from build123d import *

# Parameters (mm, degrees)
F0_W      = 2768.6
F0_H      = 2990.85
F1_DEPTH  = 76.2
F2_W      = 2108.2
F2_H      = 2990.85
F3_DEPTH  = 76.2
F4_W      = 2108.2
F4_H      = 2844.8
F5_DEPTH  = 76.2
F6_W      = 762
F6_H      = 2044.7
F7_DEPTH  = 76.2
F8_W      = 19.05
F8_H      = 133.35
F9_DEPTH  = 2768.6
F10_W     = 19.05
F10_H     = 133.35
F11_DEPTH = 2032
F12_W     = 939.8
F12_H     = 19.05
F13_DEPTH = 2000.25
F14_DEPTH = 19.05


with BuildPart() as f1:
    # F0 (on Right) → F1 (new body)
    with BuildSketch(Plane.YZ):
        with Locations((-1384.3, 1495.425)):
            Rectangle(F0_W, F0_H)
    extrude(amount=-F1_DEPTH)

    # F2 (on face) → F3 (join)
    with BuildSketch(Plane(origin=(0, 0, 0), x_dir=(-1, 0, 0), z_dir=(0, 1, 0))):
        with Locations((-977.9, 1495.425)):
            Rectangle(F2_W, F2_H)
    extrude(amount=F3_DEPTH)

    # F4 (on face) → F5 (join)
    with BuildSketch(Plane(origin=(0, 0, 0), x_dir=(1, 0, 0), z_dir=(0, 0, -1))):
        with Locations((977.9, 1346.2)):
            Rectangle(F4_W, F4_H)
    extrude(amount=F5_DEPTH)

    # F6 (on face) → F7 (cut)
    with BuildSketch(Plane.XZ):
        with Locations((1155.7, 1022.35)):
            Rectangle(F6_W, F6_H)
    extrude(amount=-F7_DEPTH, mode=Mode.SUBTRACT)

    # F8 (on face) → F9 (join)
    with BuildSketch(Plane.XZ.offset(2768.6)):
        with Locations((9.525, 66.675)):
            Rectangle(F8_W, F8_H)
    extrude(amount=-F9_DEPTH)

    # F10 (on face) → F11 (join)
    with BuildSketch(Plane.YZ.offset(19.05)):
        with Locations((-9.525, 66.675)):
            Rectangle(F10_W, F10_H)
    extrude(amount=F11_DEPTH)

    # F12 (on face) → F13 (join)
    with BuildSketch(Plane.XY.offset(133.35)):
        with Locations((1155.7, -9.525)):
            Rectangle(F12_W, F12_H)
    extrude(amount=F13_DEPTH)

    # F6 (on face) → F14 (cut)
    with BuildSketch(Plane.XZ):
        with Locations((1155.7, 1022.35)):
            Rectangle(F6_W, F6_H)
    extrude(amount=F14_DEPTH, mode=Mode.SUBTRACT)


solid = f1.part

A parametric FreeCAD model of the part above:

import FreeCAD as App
import Part
import Sketcher

V = App.Vector
Q = App.Units.Quantity

doc = App.newDocument("Part")
params = doc.addObject("Spreadsheet::Sheet", "Params")
for row, (alias, value) in enumerate([
    ("sketch1_width", "109 in"),
    ("sketch1_height", "117.75 in"),
    ("pad1_length", "3 in"),
    ("sketch2_width", "83 in"),
    ("sketch2_height", "117.75 in"),
    ("pad2_length", "3 in"),
    ("sketch3_width", "83 in"),
    ("sketch3_height", "112 in"),
    ("pad3_length", "3 in"),
    ("sketch4_width", "30 in"),
    ("sketch4_height", "80.5 in"),
    ("pocket1_length", "3 in"),
    ("sketch5_width", "0.75 in"),
    ("sketch5_height", "5.25 in"),
    ("pad4_length", "109 in"),
    ("sketch6_width", "0.75 in"),
    ("sketch6_height", "5.25 in"),
    ("pad5_length", "80 in"),
    ("sketch7_width", "37 in"),
    ("sketch7_height", "0.75 in"),
    ("pad6_length", "78.75 in"),
    ("sketch8_width", "30 in"),
    ("sketch8_height", "80.5 in"),
    ("pocket2_length", "0.75 in"),
], start=1):
    params.set(f"A{row}", alias)
    params.set(f"B{row}", "=" + value)
    params.setAlias(f"B{row}", alias)

body = doc.addObject("PartDesign::Body", "Body")

sketch1 = body.newObject("Sketcher::SketchObject", "Sketch")
sketch1.AttachmentSupport = (doc.getObject("YZ_Plane"), [""])
sketch1.MapMode = "FlatFace"
sketch1.addGeometry(Part.LineSegment(V(-2768.6, 2990.85, 0), V(-2768.6, 0, 0)), False)
sketch1.addGeometry(Part.LineSegment(V(-2768.6, 0, 0), V(0, 0, 0)), False)
sketch1.addGeometry(Part.LineSegment(V(0, 0, 0), V(0, 2990.85, 0)), False)
sketch1.addGeometry(Part.LineSegment(V(0, 2990.85, 0), V(-2768.6, 2990.85, 0)), False)
sketch1.addConstraint(Sketcher.Constraint("Coincident", 0, 2, 1, 1))
sketch1.addConstraint(Sketcher.Constraint("Coincident", 1, 2, 2, 1))
sketch1.addConstraint(Sketcher.Constraint("Coincident", 2, 2, 3, 1))
sketch1.addConstraint(Sketcher.Constraint("Coincident", 3, 2, 0, 1))
sketch1.addConstraint(Sketcher.Constraint("Vertical", 0))
sketch1.addConstraint(Sketcher.Constraint("Horizontal", 1))
sketch1.addConstraint(Sketcher.Constraint("Vertical", 2))
sketch1.addConstraint(Sketcher.Constraint("Horizontal", 3))
sketch1.addConstraint(Sketcher.Constraint("Coincident", 1, 2, -1, 1))
sketch1.addConstraint(Sketcher.Constraint("DistanceX", 1, 1, 1, 2, Q("109 in")))
sketch1.addConstraint(Sketcher.Constraint("DistanceY", 0, 2, 0, 1, Q("117.75 in")))
sketch1.setExpression("Constraints[9]", "Params.sketch1_width")
sketch1.setExpression("Constraints[10]", "Params.sketch1_height")
pad1 = body.newObject("PartDesign::Pad", "Pad")
pad1.Profile = sketch1
pad1.setExpression("Length", "Params.pad1_length")
pad1.Reversed = True

sketch2 = body.newObject("Sketcher::SketchObject", "Sketch001")
sketch2.AttachmentSupport = (doc.getObject("XZ_Plane"), [""])
sketch2.MapMode = "FlatFace"
sketch2.addGeometry(Part.LineSegment(V(2032, 2990.85, 0), V(2032, 0, 0)), False)
sketch2.addGeometry(Part.LineSegment(V(2032, 0, 0), V(-76.2, 0, 0)), False)
sketch2.addGeometry(Part.LineSegment(V(-76.2, 0, 0), V(-76.2, 2990.85, 0)), False)
sketch2.addGeometry(Part.LineSegment(V(-76.2, 2990.85, 0), V(2032, 2990.85, 0)), False)
sketch2.addConstraint(Sketcher.Constraint("Coincident", 0, 2, 1, 1))
sketch2.addConstraint(Sketcher.Constraint("Coincident", 1, 2, 2, 1))
sketch2.addConstraint(Sketcher.Constraint("Coincident", 2, 2, 3, 1))
sketch2.addConstraint(Sketcher.Constraint("Coincident", 3, 2, 0, 1))
sketch2.addConstraint(Sketcher.Constraint("Vertical", 0))
sketch2.addConstraint(Sketcher.Constraint("Horizontal", 1))
sketch2.addConstraint(Sketcher.Constraint("Vertical", 2))
sketch2.addConstraint(Sketcher.Constraint("Horizontal", 3))
sketch2.addConstraint(Sketcher.Constraint("PointOnObject", 0, 2, -1))
sketch2.addConstraint(Sketcher.Constraint("DistanceX", 1, 2, 1, 1, Q("83 in")))
sketch2.addConstraint(Sketcher.Constraint("DistanceX", -1, 1, 0, 2, Q("80 in")))
sketch2.addConstraint(Sketcher.Constraint("DistanceY", 0, 2, 0, 1, Q("117.75 in")))
sketch2.setExpression("Constraints[9]", "Params.sketch2_width")
sketch2.setExpression("Constraints[11]", "Params.sketch2_height")
pad2 = body.newObject("PartDesign::Pad", "Pad001")
pad2.Profile = sketch2
pad2.setExpression("Length", "Params.pad2_length")
pad2.Reversed = True

sketch3 = body.newObject("Sketcher::SketchObject", "Sketch002")
sketch3.AttachmentSupport = (doc.getObject("XY_Plane"), [""])
sketch3.MapMode = "FlatFace"
sketch3.addGeometry(Part.LineSegment(V(-76.2, -2768.6, 0), V(-76.2, 76.2, 0)), False)
sketch3.addGeometry(Part.LineSegment(V(-76.2, 76.2, 0), V(2032, 76.2, 0)), False)
sketch3.addGeometry(Part.LineSegment(V(2032, 76.2, 0), V(2032, -2768.6, 0)), False)
sketch3.addGeometry(Part.LineSegment(V(2032, -2768.6, 0), V(-76.2, -2768.6, 0)), False)
sketch3.addConstraint(Sketcher.Constraint("Coincident", 0, 2, 1, 1))
sketch3.addConstraint(Sketcher.Constraint("Coincident", 1, 2, 2, 1))
sketch3.addConstraint(Sketcher.Constraint("Coincident", 2, 2, 3, 1))
sketch3.addConstraint(Sketcher.Constraint("Coincident", 3, 2, 0, 1))
sketch3.addConstraint(Sketcher.Constraint("Vertical", 0))
sketch3.addConstraint(Sketcher.Constraint("Horizontal", 1))
sketch3.addConstraint(Sketcher.Constraint("Vertical", 2))
sketch3.addConstraint(Sketcher.Constraint("Horizontal", 3))
sketch3.addConstraint(Sketcher.Constraint("DistanceX", 1, 1, 1, 2, Q("83 in")))
sketch3.addConstraint(Sketcher.Constraint("DistanceY", 0, 1, 0, 2, Q("112 in")))
sketch3.addConstraint(Sketcher.Constraint("DistanceX", 0, 2, -1, 1, Q("3 in")))
sketch3.addConstraint(Sketcher.Constraint("DistanceY", -1, 1, 0, 2, Q("3 in")))
sketch3.setExpression("Constraints[8]", "Params.sketch3_width")
sketch3.setExpression("Constraints[9]", "Params.sketch3_height")
pad3 = body.newObject("PartDesign::Pad", "Pad002")
pad3.Profile = sketch3
pad3.setExpression("Length", "Params.pad3_length")
pad3.Reversed = True

sketch4 = body.newObject("Sketcher::SketchObject", "Sketch003")
sketch4.AttachmentSupport = (doc.getObject("XZ_Plane"), [""])
sketch4.MapMode = "FlatFace"
sketch4.addGeometry(Part.LineSegment(V(774.7, 2044.7, 0), V(774.7, 0, 0)), False)
sketch4.addGeometry(Part.LineSegment(V(774.7, 0, 0), V(1536.7, 0, 0)), False)
sketch4.addGeometry(Part.LineSegment(V(1536.7, 0, 0), V(1536.7, 2044.7, 0)), False)
sketch4.addGeometry(Part.LineSegment(V(1536.7, 2044.7, 0), V(774.7, 2044.7, 0)), False)
sketch4.addConstraint(Sketcher.Constraint("Coincident", 0, 2, 1, 1))
sketch4.addConstraint(Sketcher.Constraint("Coincident", 1, 2, 2, 1))
sketch4.addConstraint(Sketcher.Constraint("Coincident", 2, 2, 3, 1))
sketch4.addConstraint(Sketcher.Constraint("Coincident", 3, 2, 0, 1))
sketch4.addConstraint(Sketcher.Constraint("Vertical", 0))
sketch4.addConstraint(Sketcher.Constraint("Horizontal", 1))
sketch4.addConstraint(Sketcher.Constraint("Vertical", 2))
sketch4.addConstraint(Sketcher.Constraint("Horizontal", 3))
sketch4.addConstraint(Sketcher.Constraint("PointOnObject", 0, 2, -1))
sketch4.addConstraint(Sketcher.Constraint("DistanceX", 1, 1, 1, 2, Q("30 in")))
sketch4.addConstraint(Sketcher.Constraint("DistanceY", 0, 2, 0, 1, Q("80.5 in")))
sketch4.addConstraint(Sketcher.Constraint("DistanceX", -1, 1, 0, 2, Q("30.5 in")))
sketch4.setExpression("Constraints[9]", "Params.sketch4_width")
sketch4.setExpression("Constraints[10]", "Params.sketch4_height")
pocket1 = body.newObject("PartDesign::Pocket", "Pocket")
pocket1.Profile = sketch4
pocket1.setExpression("Length", "Params.pocket1_length")

sketch5 = body.newObject("Sketcher::SketchObject", "Sketch004")
sketch5.AttachmentSupport = (doc.getObject("XZ_Plane"), [""])
sketch5.MapMode = "FlatFace"
sketch5.AttachmentOffset = App.Placement(V(0, 0, 109 * 25.4), App.Rotation())
sketch5.addGeometry(Part.LineSegment(V(0, 133.35, 0), V(0, 0, 0)), False)
sketch5.addGeometry(Part.LineSegment(V(0, 0, 0), V(19.05, 0, 0)), False)
sketch5.addGeometry(Part.LineSegment(V(19.05, 0, 0), V(19.05, 133.35, 0)), False)
sketch5.addGeometry(Part.LineSegment(V(19.05, 133.35, 0), V(0, 133.35, 0)), False)
sketch5.addConstraint(Sketcher.Constraint("Coincident", 0, 2, 1, 1))
sketch5.addConstraint(Sketcher.Constraint("Coincident", 1, 2, 2, 1))
sketch5.addConstraint(Sketcher.Constraint("Coincident", 2, 2, 3, 1))
sketch5.addConstraint(Sketcher.Constraint("Coincident", 3, 2, 0, 1))
sketch5.addConstraint(Sketcher.Constraint("Vertical", 0))
sketch5.addConstraint(Sketcher.Constraint("Horizontal", 1))
sketch5.addConstraint(Sketcher.Constraint("Vertical", 2))
sketch5.addConstraint(Sketcher.Constraint("Horizontal", 3))
sketch5.addConstraint(Sketcher.Constraint("Coincident", 0, 2, -1, 1))
sketch5.addConstraint(Sketcher.Constraint("DistanceX", 1, 1, 1, 2, Q("0.75 in")))
sketch5.addConstraint(Sketcher.Constraint("DistanceY", 0, 2, 0, 1, Q("5.25 in")))
sketch5.setExpression("Constraints[9]", "Params.sketch5_width")
sketch5.setExpression("Constraints[10]", "Params.sketch5_height")
pad4 = body.newObject("PartDesign::Pad", "Pad003")
pad4.Profile = sketch5
pad4.setExpression("Length", "Params.pad4_length")
pad4.Reversed = True

sketch6 = body.newObject("Sketcher::SketchObject", "Sketch005")
sketch6.AttachmentSupport = (doc.getObject("YZ_Plane"), [""])
sketch6.MapMode = "FlatFace"
sketch6.AttachmentOffset = App.Placement(V(0, 0, 0.75 * 25.4), App.Rotation())
sketch6.addGeometry(Part.LineSegment(V(-19.05, 133.35, 0), V(-19.05, 0, 0)), False)
sketch6.addGeometry(Part.LineSegment(V(-19.05, 0, 0), V(0, 0, 0)), False)
sketch6.addGeometry(Part.LineSegment(V(0, 0, 0), V(0, 133.35, 0)), False)
sketch6.addGeometry(Part.LineSegment(V(0, 133.35, 0), V(-19.05, 133.35, 0)), False)
sketch6.addConstraint(Sketcher.Constraint("Coincident", 0, 2, 1, 1))
sketch6.addConstraint(Sketcher.Constraint("Coincident", 1, 2, 2, 1))
sketch6.addConstraint(Sketcher.Constraint("Coincident", 2, 2, 3, 1))
sketch6.addConstraint(Sketcher.Constraint("Coincident", 3, 2, 0, 1))
sketch6.addConstraint(Sketcher.Constraint("Vertical", 0))
sketch6.addConstraint(Sketcher.Constraint("Horizontal", 1))
sketch6.addConstraint(Sketcher.Constraint("Vertical", 2))
sketch6.addConstraint(Sketcher.Constraint("Horizontal", 3))
sketch6.addConstraint(Sketcher.Constraint("Coincident", 1, 2, -1, 1))
sketch6.addConstraint(Sketcher.Constraint("DistanceX", 1, 1, 1, 2, Q("0.75 in")))
sketch6.addConstraint(Sketcher.Constraint("DistanceY", 0, 2, 0, 1, Q("5.25 in")))
sketch6.setExpression("Constraints[9]", "Params.sketch6_width")
sketch6.setExpression("Constraints[10]", "Params.sketch6_height")
pad5 = body.newObject("PartDesign::Pad", "Pad004")
pad5.Profile = sketch6
pad5.setExpression("Length", "Params.pad5_length")

sketch7 = body.newObject("Sketcher::SketchObject", "Sketch006")
sketch7.AttachmentSupport = (doc.getObject("XY_Plane"), [""])
sketch7.MapMode = "FlatFace"
sketch7.AttachmentOffset = App.Placement(V(0, 0, 5.25 * 25.4), App.Rotation())
sketch7.addGeometry(Part.LineSegment(V(685.8, 0, 0), V(685.8, -19.05, 0)), False)
sketch7.addGeometry(Part.LineSegment(V(685.8, -19.05, 0), V(1625.6, -19.05, 0)), False)
sketch7.addGeometry(Part.LineSegment(V(1625.6, -19.05, 0), V(1625.6, 0, 0)), False)
sketch7.addGeometry(Part.LineSegment(V(1625.6, 0, 0), V(685.8, 0, 0)), False)
sketch7.addConstraint(Sketcher.Constraint("Coincident", 0, 2, 1, 1))
sketch7.addConstraint(Sketcher.Constraint("Coincident", 1, 2, 2, 1))
sketch7.addConstraint(Sketcher.Constraint("Coincident", 2, 2, 3, 1))
sketch7.addConstraint(Sketcher.Constraint("Coincident", 3, 2, 0, 1))
sketch7.addConstraint(Sketcher.Constraint("Vertical", 0))
sketch7.addConstraint(Sketcher.Constraint("Horizontal", 1))
sketch7.addConstraint(Sketcher.Constraint("Vertical", 2))
sketch7.addConstraint(Sketcher.Constraint("Horizontal", 3))
sketch7.addConstraint(Sketcher.Constraint("PointOnObject", 2, 2, -1))
sketch7.addConstraint(Sketcher.Constraint("DistanceX", 1, 1, 1, 2, Q("37 in")))
sketch7.addConstraint(Sketcher.Constraint("DistanceX", -1, 1, 0, 2, Q("27 in")))
sketch7.addConstraint(Sketcher.Constraint("DistanceY", 0, 2, 0, 1, Q("0.75 in")))
sketch7.setExpression("Constraints[9]", "Params.sketch7_width")
sketch7.setExpression("Constraints[11]", "Params.sketch7_height")
pad6 = body.newObject("PartDesign::Pad", "Pad005")
pad6.Profile = sketch7
pad6.setExpression("Length", "Params.pad6_length")

sketch8 = body.newObject("Sketcher::SketchObject", "Sketch007")
sketch8.AttachmentSupport = (doc.getObject("XZ_Plane"), [""])
sketch8.MapMode = "FlatFace"
sketch8.addGeometry(Part.LineSegment(V(774.7, 2044.7, 0), V(774.7, 0, 0)), False)
sketch8.addGeometry(Part.LineSegment(V(774.7, 0, 0), V(1536.7, 0, 0)), False)
sketch8.addGeometry(Part.LineSegment(V(1536.7, 0, 0), V(1536.7, 2044.7, 0)), False)
sketch8.addGeometry(Part.LineSegment(V(1536.7, 2044.7, 0), V(774.7, 2044.7, 0)), False)
sketch8.addConstraint(Sketcher.Constraint("Coincident", 0, 2, 1, 1))
sketch8.addConstraint(Sketcher.Constraint("Coincident", 1, 2, 2, 1))
sketch8.addConstraint(Sketcher.Constraint("Coincident", 2, 2, 3, 1))
sketch8.addConstraint(Sketcher.Constraint("Coincident", 3, 2, 0, 1))
sketch8.addConstraint(Sketcher.Constraint("Vertical", 0))
sketch8.addConstraint(Sketcher.Constraint("Horizontal", 1))
sketch8.addConstraint(Sketcher.Constraint("Vertical", 2))
sketch8.addConstraint(Sketcher.Constraint("Horizontal", 3))
sketch8.addConstraint(Sketcher.Constraint("PointOnObject", 0, 2, -1))
sketch8.addConstraint(Sketcher.Constraint("DistanceX", 1, 1, 1, 2, Q("30 in")))
sketch8.addConstraint(Sketcher.Constraint("DistanceY", 0, 2, 0, 1, Q("80.5 in")))
sketch8.addConstraint(Sketcher.Constraint("DistanceX", -1, 1, 0, 2, Q("30.5 in")))
sketch8.setExpression("Constraints[9]", "Params.sketch8_width")
sketch8.setExpression("Constraints[10]", "Params.sketch8_height")
pocket2 = body.newObject("PartDesign::Pocket", "Pocket001")
pocket2.Profile = sketch8
pocket2.setExpression("Length", "Params.pocket2_length")
pocket2.Reversed = True

doc.recompute()
